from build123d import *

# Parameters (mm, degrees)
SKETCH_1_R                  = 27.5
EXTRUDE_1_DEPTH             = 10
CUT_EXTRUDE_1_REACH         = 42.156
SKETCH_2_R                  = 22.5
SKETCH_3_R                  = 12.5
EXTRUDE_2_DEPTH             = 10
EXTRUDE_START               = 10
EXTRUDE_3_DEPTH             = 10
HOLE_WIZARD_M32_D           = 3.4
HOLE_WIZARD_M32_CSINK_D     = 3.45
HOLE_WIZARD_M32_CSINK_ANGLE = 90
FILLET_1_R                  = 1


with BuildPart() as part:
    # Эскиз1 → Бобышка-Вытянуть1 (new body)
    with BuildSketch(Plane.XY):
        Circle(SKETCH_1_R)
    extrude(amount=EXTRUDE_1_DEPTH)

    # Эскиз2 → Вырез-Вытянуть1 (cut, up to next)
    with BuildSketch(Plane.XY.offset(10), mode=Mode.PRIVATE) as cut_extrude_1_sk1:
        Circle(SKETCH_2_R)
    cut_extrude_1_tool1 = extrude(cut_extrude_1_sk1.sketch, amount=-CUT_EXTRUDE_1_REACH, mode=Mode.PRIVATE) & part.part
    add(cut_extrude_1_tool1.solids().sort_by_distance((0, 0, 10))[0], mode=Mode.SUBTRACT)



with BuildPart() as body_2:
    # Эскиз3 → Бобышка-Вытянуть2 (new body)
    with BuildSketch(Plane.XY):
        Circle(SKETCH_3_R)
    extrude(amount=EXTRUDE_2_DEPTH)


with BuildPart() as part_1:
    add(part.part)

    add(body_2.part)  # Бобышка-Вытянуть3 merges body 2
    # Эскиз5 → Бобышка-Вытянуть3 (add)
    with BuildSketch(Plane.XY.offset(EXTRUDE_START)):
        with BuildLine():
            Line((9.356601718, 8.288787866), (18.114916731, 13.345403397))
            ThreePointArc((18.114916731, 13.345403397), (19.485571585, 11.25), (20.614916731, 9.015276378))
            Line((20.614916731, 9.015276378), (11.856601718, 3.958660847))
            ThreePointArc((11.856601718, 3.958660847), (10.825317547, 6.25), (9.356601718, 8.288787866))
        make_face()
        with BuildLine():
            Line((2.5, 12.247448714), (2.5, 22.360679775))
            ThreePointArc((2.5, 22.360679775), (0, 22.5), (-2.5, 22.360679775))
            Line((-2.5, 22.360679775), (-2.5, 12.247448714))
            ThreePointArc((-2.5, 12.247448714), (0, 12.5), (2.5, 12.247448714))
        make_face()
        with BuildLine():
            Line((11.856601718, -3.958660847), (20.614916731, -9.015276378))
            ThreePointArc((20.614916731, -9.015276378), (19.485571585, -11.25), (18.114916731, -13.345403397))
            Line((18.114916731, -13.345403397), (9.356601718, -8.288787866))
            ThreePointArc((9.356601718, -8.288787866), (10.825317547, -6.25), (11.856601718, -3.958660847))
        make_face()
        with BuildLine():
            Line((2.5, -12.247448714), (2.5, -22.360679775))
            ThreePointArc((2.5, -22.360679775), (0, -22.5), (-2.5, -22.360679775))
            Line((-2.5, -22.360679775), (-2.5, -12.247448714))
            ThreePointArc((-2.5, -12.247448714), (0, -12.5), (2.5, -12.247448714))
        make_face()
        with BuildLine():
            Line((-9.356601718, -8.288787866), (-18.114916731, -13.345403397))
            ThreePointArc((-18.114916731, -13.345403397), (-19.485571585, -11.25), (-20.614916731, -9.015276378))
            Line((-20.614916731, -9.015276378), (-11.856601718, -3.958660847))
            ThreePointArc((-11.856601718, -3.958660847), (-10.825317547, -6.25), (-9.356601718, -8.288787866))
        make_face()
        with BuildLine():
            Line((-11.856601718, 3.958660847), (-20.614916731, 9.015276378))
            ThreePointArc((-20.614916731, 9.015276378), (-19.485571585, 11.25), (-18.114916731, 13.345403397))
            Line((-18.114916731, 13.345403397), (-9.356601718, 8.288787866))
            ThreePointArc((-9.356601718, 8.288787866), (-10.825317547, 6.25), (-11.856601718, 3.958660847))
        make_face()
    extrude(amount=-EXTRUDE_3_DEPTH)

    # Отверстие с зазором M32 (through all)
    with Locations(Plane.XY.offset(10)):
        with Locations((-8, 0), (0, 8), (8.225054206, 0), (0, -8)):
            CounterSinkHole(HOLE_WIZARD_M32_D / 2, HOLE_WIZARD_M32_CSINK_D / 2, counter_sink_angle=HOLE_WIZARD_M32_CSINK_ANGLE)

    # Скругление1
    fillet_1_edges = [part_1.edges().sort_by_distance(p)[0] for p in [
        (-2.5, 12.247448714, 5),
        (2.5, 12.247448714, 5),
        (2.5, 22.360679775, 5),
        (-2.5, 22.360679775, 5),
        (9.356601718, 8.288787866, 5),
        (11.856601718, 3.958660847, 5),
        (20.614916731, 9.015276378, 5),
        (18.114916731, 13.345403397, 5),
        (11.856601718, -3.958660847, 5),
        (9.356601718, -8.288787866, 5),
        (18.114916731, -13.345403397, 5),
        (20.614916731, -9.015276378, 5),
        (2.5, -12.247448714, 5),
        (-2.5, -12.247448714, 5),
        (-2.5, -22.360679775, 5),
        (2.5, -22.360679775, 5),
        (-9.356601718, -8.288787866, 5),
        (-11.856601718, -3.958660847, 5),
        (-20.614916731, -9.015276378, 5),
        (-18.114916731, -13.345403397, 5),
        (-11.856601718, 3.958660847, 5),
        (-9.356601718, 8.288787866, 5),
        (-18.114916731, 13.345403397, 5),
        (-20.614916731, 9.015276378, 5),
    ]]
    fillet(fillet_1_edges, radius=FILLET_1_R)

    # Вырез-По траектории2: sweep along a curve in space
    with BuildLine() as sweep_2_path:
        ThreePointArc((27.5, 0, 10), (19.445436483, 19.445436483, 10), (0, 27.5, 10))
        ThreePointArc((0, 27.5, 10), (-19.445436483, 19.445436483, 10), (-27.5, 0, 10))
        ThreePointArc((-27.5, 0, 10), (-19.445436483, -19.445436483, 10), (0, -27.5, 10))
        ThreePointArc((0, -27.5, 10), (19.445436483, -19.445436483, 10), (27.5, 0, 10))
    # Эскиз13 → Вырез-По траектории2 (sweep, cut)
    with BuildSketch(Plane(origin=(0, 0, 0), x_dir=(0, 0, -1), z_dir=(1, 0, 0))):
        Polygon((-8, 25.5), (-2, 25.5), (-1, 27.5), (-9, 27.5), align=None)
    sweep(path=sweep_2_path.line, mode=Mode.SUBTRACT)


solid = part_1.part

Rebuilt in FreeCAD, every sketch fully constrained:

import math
import FreeCAD as App
import Part
import Sketcher
Q = App.Units.Quantity


def edges_at(feature, points):
    """Names of the edges that pass closest to the given points."""
    edges = feature.Shape.Edges
    near = lambda p: min(range(len(edges)), key=lambda i: edges[i].distToShape(Part.Vertex(*p))[0])
    return sorted({f"Edge{near(p) + 1}" for p in points})


def add_polygon(sketch, points):
    """Adds a closed chain of lines whose ends are joined by coincident constraints."""
    first, n = sketch.GeometryCount, len(points)
    for a, b in zip(points, points[1:] + points[:1]):
        sketch.addGeometry(Part.LineSegment(App.Vector(*a, 0), App.Vector(*b, 0)), False)
    for i in range(n):
        sketch.addConstraint(Sketcher.Constraint("Coincident", first + i, 2, first + (i + 1) % n, 1))

doc = App.newDocument("Part")
body = doc.addObject("PartDesign::Body", "Body")

# Sketch on XY plane
sketch1 = body.newObject("Sketcher::SketchObject", "Sketch")
sketch1.AttachmentSupport = (doc.getObject("XY_Plane"), [""])
sketch1.MapMode = "FlatFace"
sketch1.addGeometry(Part.Circle(App.Vector(0, 0, 0), App.Vector(0, 0, 1), 27.5), False)
sketch1.addConstraint(Sketcher.Constraint("Coincident", 0, 3, -1, 1))
sketch1.addConstraint(Sketcher.Constraint("Diameter", 0, Q("55 mm")))
pad1 = body.newObject("PartDesign::Pad", "Pad")
pad1.Profile = sketch1
pad1.Length = 10

# Sketch on XY plane
sketch2 = body.newObject("Sketcher::SketchObject", "Sketch001")
sketch2.AttachmentSupport = (doc.getObject("XY_Plane"), [""])
sketch2.MapMode = "FlatFace"
sketch2.AttachmentOffset = App.Placement(App.Vector(0, 0, 10), App.Rotation())
sketch2.addGeometry(Part.Circle(App.Vector(0, 0, 0), App.Vector(0, 0, 1), 22.5), False)
sketch2.addConstraint(Sketcher.Constraint("Coincident", 0, 3, -1, 1))
sketch2.addConstraint(Sketcher.Constraint("Diameter", 0, Q("45 mm")))
pocket1 = body.newObject("PartDesign::Pocket", "Pocket")
pocket1.Profile = sketch2
pocket1.Type = "UpToFirst"
body2 = doc.addObject("PartDesign::Body", "Body001")

# Sketch on XY plane
sketch3 = body2.newObject("Sketcher::SketchObject", "Sketch002")
sketch3.AttachmentSupport = (doc.getObject("XY_Plane001"), [""])
sketch3.MapMode = "FlatFace"
sketch3.addGeometry(Part.Circle(App.Vector(0, 0, 0), App.Vector(0, 0, 1), 12.5), False)
sketch3.addConstraint(Sketcher.Constraint("Coincident", 0, 3, -1, 1))
sketch3.addConstraint(Sketcher.Constraint("Diameter", 0, Q("25 mm")))
pad2 = body2.newObject("PartDesign::Pad", "Pad001")
pad2.Profile = sketch3
pad2.Length = 10
body.AllowCompound = True
doc.recompute()

boolean = body.newObject("PartDesign::Boolean", "Boolean")
boolean.Type = "Fuse"
boolean.addObjects([body2])

# Sketch on XY plane
sketch4 = body.newObject("Sketcher::SketchObject", "Sketch003")
sketch4.AttachmentSupport = (doc.getObject("XY_Plane"), [""])
sketch4.MapMode = "FlatFace"
sketch4.AttachmentOffset = App.Placement(App.Vector(0, 0, 10), App.Rotation())
sketch4.addGeometry(Part.LineSegment(App.Vector(18.114917, 13.345403, 0), App.Vector(9.356602, 8.288788, 0)), False)
sketch4.addGeometry(Part.ArcOfCircle(Part.Circle(App.Vector(0, 0, 0), App.Vector(0, 0, 1), 12.5), math.radians(18.463041), math.radians(41.536959)), False)
sketch4.addGeometry(Part.LineSegment(App.Vector(11.856602, 3.958661, 0), App.Vector(20.614917, 9.015276, 0)), False)
sketch4.addGeometry(Part.ArcOfCircle(Part.Circle(App.Vector(0, 0, 0), App.Vector(0, 0, 1), 22.5), math.radians(23.62063), math.radians(36.37937)), False)
sketch4.addGeometry(Part.LineSegment(App.Vector(2.5, 12.247449, 0), App.Vector(2.5, 22.36068, 0)), False)
sketch4.addGeometry(Part.ArcOfCircle(Part.Circle(App.Vector(0, 0, 0), App.Vector(0, 0, 1), 22.5), math.radians(83.62063), math.radians(96.37937)), False)
sketch4.addGeometry(Part.LineSegment(App.Vector(-2.5, 22.36068, 0), App.Vector(-2.5, 12.247449, 0)), False)
sketch4.addGeometry(Part.ArcOfCircle(Part.Circle(App.Vector(0, 0, 0), App.Vector(0, 0, 1), 12.5), math.radians(78.463041), math.radians(101.536959)), False)
sketch4.addGeometry(Part.LineSegment(App.Vector(20.614917, -9.015276, 0), App.Vector(11.856602, -3.958661, 0)), False)
sketch4.addGeometry(Part.ArcOfCircle(Part.Circle(App.Vector(0, 0, 0), App.Vector(0, 0, 1), 12.5), math.radians(-41.536959), math.radians(-18.463041)), False)
sketch4.addGeometry(Part.LineSegment(App.Vector(9.356602, -8.288788, 0), App.Vector(18.114917, -13.345403, 0)), False)
sketch4.addGeometry(Part.ArcOfCircle(Part.Circle(App.Vector(0, 0, 0), App.Vector(0, 0, 1), 22.5), math.radians(-36.37937), math.radians(-23.62063)), False)
sketch4.addGeometry(Part.LineSegment(App.Vector(2.5, -22.36068, 0), App.Vector(2.5, -12.247449, 0)), False)
sketch4.addGeometry(Part.ArcOfCircle(Part.Circle(App.Vector(0, 0, 0), App.Vector(0, 0, 1), 12.5), math.radians(-101.536959), math.radians(-78.463041)), False)
sketch4.addGeometry(Part.LineSegment(App.Vector(-2.5, -12.247449, 0), App.Vector(-2.5, -22.36068, 0)), False)
sketch4.addGeometry(Part.ArcOfCircle(Part.Circle(App.Vector(0, 0, 0), App.Vector(0, 0, 1), 22.5), math.radians(-96.37937), math.radians(-83.62063)), False)
sketch4.addGeometry(Part.LineSegment(App.Vector(-18.114917, -13.345403, 0), App.Vector(-9.356602, -8.288788, 0)), False)
sketch4.addGeometry(Part.ArcOfCircle(Part.Circle(App.Vector(0, 0, 0), App.Vector(0, 0, 1), 12.5), math.radians(-161.536959), math.radians(-138.463041)), False)
sketch4.addGeometry(Part.LineSegment(App.Vector(-11.856602, -3.958661, 0), App.Vector(-20.614917, -9.015276, 0)), False)
sketch4.addGeometry(Part.ArcOfCircle(Part.Circle(App.Vector(0, 0, 0), App.Vector(0, 0, 1), 22.5), math.radians(-156.37937), math.radians(-143.62063)), False)
sketch4.addGeometry(Part.LineSegment(App.Vector(-20.614917, 9.015276, 0), App.Vector(-11.856602, 3.958661, 0)), False)
sketch4.addGeometry(Part.ArcOfCircle(Part.Circle(App.Vector(0, 0, 0), App.Vector(0, 0, 1), 12.5), math.radians(138.463041), math.radians(161.536959)), False)
sketch4.addGeometry(Part.LineSegment(App.Vector(-9.356602, 8.288788, 0), App.Vector(-18.114917, 13.345403, 0)), False)
sketch4.addGeometry(Part.ArcOfCircle(Part.Circle(App.Vector(0, 0, 0), App.Vector(0, 0, 1), 22.5), math.radians(143.62063), math.radians(156.37937)), False)
sketch4.addConstraint(Sketcher.Constraint("Coincident", 0, 2, 1, 2))
sketch4.addConstraint(Sketcher.Constraint("Coincident", 1, 1, 2, 1))
sketch4.addConstraint(Sketcher.Constraint("Coincident", 2, 2, 3, 1))
sketch4.addConstraint(Sketcher.Constraint("Coincident", 3, 2, 0, 1))
sketch4.addConstraint(Sketcher.Constraint("Coincident", 4, 2, 5, 1))
sketch4.addConstraint(Sketcher.Constraint("Coincident", 5, 2, 6, 1))
sketch4.addConstraint(Sketcher.Constraint("Coincident", 6, 2, 7, 2))
sketch4.addConstraint(Sketcher.Constraint("Coincident", 7, 1, 4, 1))
sketch4.addConstraint(Sketcher.Constraint("Coincident", 8, 2, 9, 2))
sketch4.addConstraint(Sketcher.Constraint("Coincident", 9, 1, 10, 1))
sketch4.addConstraint(Sketcher.Constraint("Coincident", 10, 2, 11, 1))
sketch4.addConstraint(Sketcher.Constraint("Coincident", 11, 2, 8, 1))
sketch4.addConstraint(Sketcher.Constraint("Coincident", 12, 2, 13, 2))
sketch4.addConstraint(Sketcher.Constraint("Coincident", 13, 1, 14, 1))
sketch4.addConstraint(Sketcher.Constraint("Coincident", 14, 2, 15, 1))
sketch4.addConstraint(Sketcher.Constraint("Coincident", 15, 2, 12, 1))
sketch4.addConstraint(Sketcher.Constraint("Coincident", 16, 2, 17, 2))
sketch4.addConstraint(Sketcher.Constraint("Coincident", 17, 1, 18, 1))
sketch4.addConstraint(Sketcher.Constraint("Coincident", 18, 2, 19, 1))
sketch4.addConstraint(Sketcher.Constraint("Coincident", 19, 2, 16, 1))
sketch4.addConstraint(Sketcher.Constraint("Coincident", 20, 2, 21, 2))
sketch4.addConstraint(Sketcher.Constraint("Coincident", 21, 1, 22, 1))
sketch4.addConstraint(Sketcher.Constraint("Coincident", 22, 2, 23, 1))
sketch4.addConstraint(Sketcher.Constraint("Coincident", 23, 2, 20, 1))
sketch4.addConstraint(Sketcher.Constraint("Vertical", 4))
sketch4.addConstraint(Sketcher.Constraint("Vertical", 6))
sketch4.addConstraint(Sketcher.Constraint("Vertical", 12))
sketch4.addConstraint(Sketcher.Constraint("Vertical", 14))
sketch4.addConstraint(Sketcher.Constraint("Coincident", 1, 3, -1, 1))
sketch4.addConstraint(Sketcher.Constraint("Coincident", 3, 3, -1, 1))
sketch4.addConstraint(Sketcher.Constraint("Coincident", 5, 3, -1, 1))
sketch4.addConstraint(Sketcher.Constraint("Coincident", 7, 3, -1, 1))
sketch4.addConstraint(Sketcher.Constraint("Coincident", 9, 3, -1, 1))
sketch4.addConstraint(Sketcher.Constraint("Coincident", 11, 3, -1, 1))
sketch4.addConstraint(Sketcher.Constraint("Coincident", 13, 3, -1, 1))
sketch4.addConstraint(Sketcher.Constraint("Coincident", 15, 3, -1, 1))
sketch4.addConstraint(Sketcher.Constraint("Coincident", 17, 3, -1, 1))
sketch4.addConstraint(Sketcher.Constraint("Coincident", 19, 3, -1, 1))
sketch4.addConstraint(Sketcher.Constraint("Coincident", 21, 3, -1, 1))
sketch4.addConstraint(Sketcher.Constraint("Coincident", 23, 3, -1, 1))
sketch4.addConstraint(Sketcher.Constraint("Equal", 3, 5))
sketch4.addConstraint(Sketcher.Constraint("Equal", 1, 7))
sketch4.addConstraint(Sketcher.Constraint("Equal", 7, 9))
sketch4.addConstraint(Sketcher.Constraint("Equal", 5, 11))
sketch4.addConstraint(Sketcher.Constraint("Equal", 9, 13))
sketch4.addConstraint(Sketcher.Constraint("Equal", 11, 15))
sketch4.addConstraint(Sketcher.Constraint("Equal", 13, 17))
sketch4.addConstraint(Sketcher.Constraint("Equal", 15, 19))
sketch4.addConstraint(Sketcher.Constraint("Equal", 17, 21))
sketch4.addConstraint(Sketcher.Constraint("Equal", 19, 23))
sketch4.addConstraint(Sketcher.Constraint("Parallel", 0, 2))
sketch4.addConstraint(Sketcher.Constraint("Parallel", 8, 10))
sketch4.addConstraint(Sketcher.Constraint("Parallel", 2, 16))
sketch4.addConstraint(Sketcher.Constraint("Parallel", 16, 18))
sketch4.addConstraint(Sketcher.Constraint("Parallel", 10, 20))
sketch4.addConstraint(Sketcher.Constraint("Parallel", 20, 22))
sketch4.addConstraint(Sketcher.Constraint("Horizontal", 4, 2, 5, 2))
sketch4.addConstraint(Sketcher.Constraint("Horizontal", 12, 2, 13, 1))
sketch4.addConstraint(Sketcher.Constraint("Horizontal", 9, 1, 16, 2))
sketch4.addConstraint(Sketcher.Constraint("Horizontal", 8, 2, 17, 1))
sketch4.addConstraint(Sketcher.Constraint("Horizontal", 11, 2, 18, 2))
sketch4.addConstraint(Sketcher.Constraint("Horizontal", 1, 1, 20, 2))
sketch4.addConstraint(Sketcher.Constraint("Horizontal", 0, 2, 21, 1))
sketch4.addConstraint(Sketcher.Constraint("Vertical", 1, 1, 8, 2))
sketch4.addConstraint(Sketcher.Constraint("Vertical", 0, 2, 9, 1))
sketch4.addConstraint(Sketcher.Constraint("Vertical", 7, 1, 12, 2))
sketch4.addConstraint(Sketcher.Constraint("Equal", 0, 2))
sketch4.addConstraint(Sketcher.Constraint("Radius", 1, Q("12.5 mm")))
sketch4.addConstraint(Sketcher.Constraint("Radius", 3, Q("22.5 mm")))
sketch4.addConstraint(Sketcher.Constraint("Angle", 0, Q("-150 deg")))
sketch4.addConstraint(Sketcher.Constraint("DistanceX", 5, 2, 4, 2, Q("5 mm")))
sketch4.addConstraint(Sketcher.Constraint("DistanceX", 0, 2, 1, 1, Q("2.5 mm")))
pad3 = body.newObject("PartDesign::Pad", "Pad002")
pad3.Profile = sketch4
pad3.Length = 10
pad3.Reversed = True

# Sketch on XY plane
sketch5 = body.newObject("Sketcher::SketchObject", "Sketch004")
sketch5.AttachmentSupport = (doc.getObject("XY_Plane"), [""])
sketch5.MapMode = "FlatFace"
sketch5.AttachmentOffset = App.Placement(App.Vector(0, 0, 10), App.Rotation())
sketch5.addGeometry(Part.Circle(App.Vector(-8, 0, 0), App.Vector(0, 0, 1), 1.7), False)
sketch5.addGeometry(Part.Circle(App.Vector(0, 8, 0), App.Vector(0, 0, 1), 1.7), False)
sketch5.addGeometry(Part.Circle(App.Vector(8.225054, 0, 0), App.Vector(0, 0, 1), 1.7), False)
sketch5.addGeometry(Part.Circle(App.Vector(0, -8, 0), App.Vector(0, 0, 1), 1.7), False)
sketch5.addConstraint(Sketcher.Constraint("Equal", 0, 1))
sketch5.addConstraint(Sketcher.Constraint("Equal", 1, 2))
sketch5.addConstraint(Sketcher.Constraint("Equal", 2, 3))
sketch5.addConstraint(Sketcher.Constraint("Symmetric", 1, 3, 3, 3, -1, 1))
sketch5.addConstraint(Sketcher.Constraint("PointOnObject", 0, 3, -1))
sketch5.addConstraint(Sketcher.Constraint("PointOnObject", 1, 3, -2))
sketch5.addConstraint(Sketcher.Constraint("PointOnObject", 2, 3, -1))
sketch5.addConstraint(Sketcher.Constraint("Diameter", 0, Q("3.4 mm")))
sketch5.addConstraint(Sketcher.Constraint("DistanceX", 0, 3, -1, 1, Q("8 mm")))
sketch5.addConstraint(Sketcher.Constraint("DistanceY", -1, 1, 1, 3, Q("8 mm")))
sketch5.addConstraint(Sketcher.Constraint("DistanceX", -1, 1, 2, 3, Q("8.225054 mm")))
doc.recompute()
hole = body.newObject("PartDesign::Hole", "Hole")
hole.Profile = sketch5
hole.ThreadType = "None"
hole.Diameter = 3.4
hole.DepthType = "ThroughAll"
hole.HoleCutType = "Countersink"
hole.HoleCutDiameter = 3.45
hole.HoleCutCountersinkAngle = 90
doc.recompute()

fillet = body.newObject("PartDesign::Fillet", "Fillet")
fillet.Base = (hole, edges_at(hole, [
    (-2.5, 12.247, 5),
    (2.5, 12.247, 5),
    (2.5, 22.361, 5),
    (-2.5, 22.361, 5),
    (9.357, 8.289, 5),
    (11.857, 3.959, 5),
    (20.615, 9.015, 5),
    (18.115, 13.345, 5),
    (11.857, -3.959, 5),
    (9.357, -8.289, 5),
    (18.115, -13.345, 5),
    (20.615, -9.015, 5),
    (2.5, -12.247, 5),
    (-2.5, -12.247, 5),
    (-2.5, -22.361, 5),
    (2.5, -22.361, 5),
    (-9.357, -8.289, 5),
    (-11.857, -3.959, 5),
    (-20.615, -9.015, 5),
    (-18.115, -13.345, 5),
    (-11.857, 3.959, 5),
    (-9.357, 8.289, 5),
    (-18.115, 13.345, 5),
    (-20.615, 9.015, 5),
]))
fillet.Radius = 1

# Sketch on YZ plane
sketch6 = body.newObject("Sketcher::SketchObject", "Sketch005")
sketch6.AttachmentSupport = (doc.getObject("YZ_Plane"), [""])
sketch6.MapMode = "FlatFace"
add_polygon(sketch6, [(25.5, 8), (25.5, 2), (27.5, 1), (27.5, 9)])  # lines 0-3
sketch6.addConstraint(Sketcher.Constraint("Vertical", 0))
sketch6.addConstraint(Sketcher.Constraint("Vertical", 2))
sketch6.addConstraint(Sketcher.Constraint("Equal", 1, 3))
sketch6.addConstraint(Sketcher.Constraint("DistanceY", 0, 2, 0, 1, Q("6 mm")))
sketch6.addConstraint(Sketcher.Constraint("DistanceY", 2, 1, 2, 2, Q("8 mm")))
sketch6.addConstraint(Sketcher.Constraint("DistanceY", -1, 1, 0, 2, Q("2 mm")))
sketch6.addConstraint(Sketcher.Constraint("DistanceX", 0, 2, 1, 2, Q("2 mm")))
sketch6.addConstraint(Sketcher.Constraint("DistanceX", -1, 1, 0, 2, Q("25.5 mm")))

# Sketch on XY plane
sketch7 = body.newObject("Sketcher::SketchObject", "Sketch006")
sketch7.AttachmentSupport = (doc.getObject("XY_Plane"), [""])
sketch7.MapMode = "FlatFace"
sketch7.AttachmentOffset = App.Placement(App.Vector(0, 0, 10), App.Rotation())
sketch7.addGeometry(Part.ArcOfCircle(Part.Circle(App.Vector(0, 0, 0), App.Vector(0, 0, 1), 27.5), math.radians(0), math.radians(90)), False)
sketch7.addGeometry(Part.ArcOfCircle(Part.Circle(App.Vector(0, 0, 0), App.Vector(0, 0, 1), 27.5), math.radians(90), math.radians(180)), False)
sketch7.addGeometry(Part.ArcOfCircle(Part.Circle(App.Vector(0, 0, 0), App.Vector(0, 0, 1), 27.5), math.radians(180), math.radians(270)), False)
sketch7.addGeometry(Part.ArcOfCircle(Part.Circle(App.Vector(0, 0, 0), App.Vector(0, 0, 1), 27.5), math.radians(-90), math.radians(0)), False)
sketch7.addConstraint(Sketcher.Constraint("Tangent", 0, 2, 1, 1))
sketch7.addConstraint(Sketcher.Constraint("Tangent", 1, 2, 2, 1))
sketch7.addConstraint(Sketcher.Constraint("Tangent", 2, 2, 3, 1))
sketch7.addConstraint(Sketcher.Constraint("Tangent", 3, 2, 0, 1))
sketch7.addConstraint(Sketcher.Constraint("Coincident", 0, 3, -1, 1))
sketch7.addConstraint(Sketcher.Constraint("Equal", 0, 1))
sketch7.addConstraint(Sketcher.Constraint("PointOnObject", 0, 2, -2))
sketch7.addConstraint(Sketcher.Constraint("PointOnObject", 1, 2, -1))
sketch7.addConstraint(Sketcher.Constraint("PointOnObject", 2, 2, -2))
sketch7.addConstraint(Sketcher.Constraint("PointOnObject", 3, 2, -1))
sketch7.addConstraint(Sketcher.Constraint("Radius", 0, Q("27.5 mm")))
doc.recompute()

subtractivepipe = body.newObject("PartDesign::SubtractivePipe", "SubtractivePipe")
subtractivepipe.Profile = sketch6
subtractivepipe.Spine = (sketch7, ["Edge1", "Edge2", "Edge3", "Edge4"])

doc.recompute()
